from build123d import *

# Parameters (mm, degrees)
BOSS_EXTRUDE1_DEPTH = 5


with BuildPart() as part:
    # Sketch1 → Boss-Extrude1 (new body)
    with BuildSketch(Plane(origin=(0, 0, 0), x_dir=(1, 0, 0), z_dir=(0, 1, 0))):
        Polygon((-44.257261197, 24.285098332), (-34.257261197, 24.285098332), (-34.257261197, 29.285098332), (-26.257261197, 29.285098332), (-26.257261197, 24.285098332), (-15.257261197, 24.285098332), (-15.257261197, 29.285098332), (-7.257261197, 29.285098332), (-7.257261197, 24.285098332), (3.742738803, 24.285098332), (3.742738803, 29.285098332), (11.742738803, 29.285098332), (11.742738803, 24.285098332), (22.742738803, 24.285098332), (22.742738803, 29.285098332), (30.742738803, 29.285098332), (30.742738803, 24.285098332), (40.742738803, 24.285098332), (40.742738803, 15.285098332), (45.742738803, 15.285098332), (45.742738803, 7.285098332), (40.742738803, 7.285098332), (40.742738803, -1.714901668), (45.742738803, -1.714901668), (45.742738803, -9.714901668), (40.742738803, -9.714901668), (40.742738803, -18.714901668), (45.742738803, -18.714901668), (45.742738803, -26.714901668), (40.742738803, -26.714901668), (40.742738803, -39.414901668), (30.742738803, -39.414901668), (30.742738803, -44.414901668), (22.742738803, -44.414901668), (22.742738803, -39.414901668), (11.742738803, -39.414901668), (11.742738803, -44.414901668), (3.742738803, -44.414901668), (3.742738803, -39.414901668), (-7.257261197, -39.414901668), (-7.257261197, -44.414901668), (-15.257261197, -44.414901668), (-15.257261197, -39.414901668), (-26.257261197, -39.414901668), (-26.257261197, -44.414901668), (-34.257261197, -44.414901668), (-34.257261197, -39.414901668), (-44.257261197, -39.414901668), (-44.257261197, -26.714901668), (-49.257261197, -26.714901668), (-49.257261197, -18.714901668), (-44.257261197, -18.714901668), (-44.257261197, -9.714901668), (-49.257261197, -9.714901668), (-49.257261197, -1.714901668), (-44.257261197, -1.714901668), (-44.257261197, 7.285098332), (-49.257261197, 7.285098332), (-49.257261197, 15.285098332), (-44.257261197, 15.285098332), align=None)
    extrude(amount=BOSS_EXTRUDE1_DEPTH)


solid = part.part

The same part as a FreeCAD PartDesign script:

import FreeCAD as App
import Part
import Sketcher
from FreeCAD import Vector
Q = App.Units.Quantity

doc = App.newDocument("Part")
params = doc.addObject("Spreadsheet::Sheet", "Params")
for row, (alias, value) in enumerate([
    ("sketch1_width", "10 mm"),
    ("sketch1_width2", "5 mm"),
    ("sketch1_width3", "8 mm"),
    ("sketch1_width4", "11 mm"),
    ("sketch1_height", "9 mm"),
    ("pad1_length", "5 mm"),
], start=1):
    params.set(f"A{row}", alias)
    params.set(f"B{row}", "=" + value)
    params.setAlias(f"B{row}", alias)

body = doc.addObject("PartDesign::Body", "Body")

# Sketch on XZ plane
sketch1 = body.newObject("Sketcher::SketchObject", "Sketch")
sketch1.AttachmentSupport = (doc.getObject("XZ_Plane"), [""])
sketch1.MapMode = "FlatFace"
sketch1.addGeometry(Part.LineSegment(Vector(-34, -24, 0), Vector(-44, -24, 0)), False)
sketch1.addGeometry(Part.LineSegment(Vector(-44, -24, 0), Vector(-44, -15, 0)), False)
sketch1.addGeometry(Part.LineSegment(Vector(-44, -15, 0), Vector(-49, -15, 0)), False)
sketch1.addGeometry(Part.LineSegment(Vector(-49, -15, 0), Vector(-49, -7, 0)), False)
sketch1.addGeometry(Part.LineSegment(Vector(-49, -7, 0), Vector(-44, -7, 0)), False)
sketch1.addGeometry(Part.LineSegment(Vector(-44, -7, 0), Vector(-44, 2, 0)), False)
sketch1.addGeometry(Part.LineSegment(Vector(-44, 2, 0), Vector(-49, 2, 0)), False)
sketch1.addGeometry(Part.LineSegment(Vector(-49, 2, 0), Vector(-49, 10, 0)), False)
sketch1.addGeometry(Part.LineSegment(Vector(-49, 10, 0), Vector(-44, 10, 0)), False)
sketch1.addGeometry(Part.LineSegment(Vector(-44, 10, 0), Vector(-44, 19, 0)), False)
sketch1.addGeometry(Part.LineSegment(Vector(-44, 19, 0), Vector(-49, 19, 0)), False)
sketch1.addGeometry(Part.LineSegment(Vector(-49, 19, 0), Vector(-49, 27, 0)), False)
sketch1.addGeometry(Part.LineSegment(Vector(-49, 27, 0), Vector(-44, 27, 0)), False)
sketch1.addGeometry(Part.LineSegment(Vector(-44, 27, 0), Vector(-44, 39, 0)), False)
sketch1.addGeometry(Part.LineSegment(Vector(-44, 39, 0), Vector(-34, 39, 0)), False)
sketch1.addGeometry(Part.LineSegment(Vector(-34, 39, 0), Vector(-34, 44, 0)), False)
sketch1.addGeometry(Part.LineSegment(Vector(-34, 44, 0), Vector(-26, 44, 0)), False)
sketch1.addGeometry(Part.LineSegment(Vector(-26, 44, 0), Vector(-26, 39, 0)), False)
sketch1.addGeometry(Part.LineSegment(Vector(-26, 39, 0), Vector(-15, 39, 0)), False)
sketch1.addGeometry(Part.LineSegment(Vector(-15, 39, 0), Vector(-15, 44, 0)), False)
sketch1.addGeometry(Part.LineSegment(Vector(-15, 44, 0), Vector(-7, 44, 0)), False)
sketch1.addGeometry(Part.LineSegment(Vector(-7, 44, 0), Vector(-7, 39, 0)), False)
sketch1.addGeometry(Part.LineSegment(Vector(-7, 39, 0), Vector(4, 39, 0)), False)
sketch1.addGeometry(Part.LineSegment(Vector(4, 39, 0), Vector(4, 44, 0)), False)
sketch1.addGeometry(Part.LineSegment(Vector(4, 44, 0), Vector(12, 44, 0)), False)
sketch1.addGeometry(Part.LineSegment(Vector(12, 44, 0), Vector(12, 39, 0)), False)
sketch1.addGeometry(Part.LineSegment(Vector(12, 39, 0), Vector(23, 39, 0)), False)
sketch1.addGeometry(Part.LineSegment(Vector(23, 39, 0), Vector(23, 44, 0)), False)
sketch1.addGeometry(Part.LineSegment(Vector(23, 44, 0), Vector(31, 44, 0)), False)
sketch1.addGeometry(Part.LineSegment(Vector(31, 44, 0), Vector(31, 39, 0)), False)
sketch1.addGeometry(Part.LineSegment(Vector(31, 39, 0), Vector(41, 39, 0)), False)
sketch1.addGeometry(Part.LineSegment(Vector(41, 39, 0), Vector(41, 27, 0)), False)
sketch1.addGeometry(Part.LineSegment(Vector(41, 27, 0), Vector(46, 27, 0)), False)
sketch1.addGeometry(Part.LineSegment(Vector(46, 27, 0), Vector(46, 19, 0)), False)
sketch1.addGeometry(Part.LineSegment(Vector(46, 19, 0), Vector(41, 19, 0)), False)
sketch1.addGeometry(Part.LineSegment(Vector(41, 19, 0), Vector(41, 10, 0)), False)
sketch1.addGeometry(Part.LineSegment(Vector(41, 10, 0), Vector(46, 10, 0)), False)
sketch1.addGeometry(Part.LineSegment(Vector(46, 10, 0), Vector(46, 2, 0)), False)
sketch1.addGeometry(Part.LineSegment(Vector(46, 2, 0), Vector(41, 2, 0)), False)
sketch1.addGeometry(Part.LineSegment(Vector(41, 2, 0), Vector(41, -7, 0)), False)
sketch1.addGeometry(Part.LineSegment(Vector(41, -7, 0), Vector(46, -7, 0)), False)
sketch1.addGeometry(Part.LineSegment(Vector(46, -7, 0), Vector(46, -15, 0)), False)
sketch1.addGeometry(Part.LineSegment(Vector(46, -15, 0), Vector(41, -15, 0)), False)
sketch1.addGeometry(Part.LineSegment(Vector(41, -15, 0), Vector(41, -24, 0)), False)
sketch1.addGeometry(Part.LineSegment(Vector(41, -24, 0), Vector(31, -24, 0)), False)
sketch1.addGeometry(Part.LineSegment(Vector(31, -24, 0), Vector(31, -29, 0)), False)
sketch1.addGeometry(Part.LineSegment(Vector(31, -29, 0), Vector(23, -29, 0)), False)
sketch1.addGeometry(Part.LineSegment(Vector(23, -29, 0), Vector(23, -24, 0)), False)
sketch1.addGeometry(Part.LineSegment(Vector(23, -24, 0), Vector(12, -24, 0)), False)
sketch1.addGeometry(Part.LineSegment(Vector(12, -24, 0), Vector(12, -29, 0)), False)
sketch1.addGeometry(Part.LineSegment(Vector(12, -29, 0), Vector(4, -29, 0)), False)
sketch1.addGeometry(Part.LineSegment(Vector(4, -29, 0), Vector(4, -24, 0)), False)
sketch1.addGeometry(Part.LineSegment(Vector(4, -24, 0), Vector(-7, -24, 0)), False)
sketch1.addGeometry(Part.LineSegment(Vector(-7, -24, 0), Vector(-7, -29, 0)), False)
sketch1.addGeometry(Part.LineSegment(Vector(-7, -29, 0), Vector(-15, -29, 0)), False)
sketch1.addGeometry(Part.LineSegment(Vector(-15, -29, 0), Vector(-15, -24, 0)), False)
sketch1.addGeometry(Part.LineSegment(Vector(-15, -24, 0), Vector(-26, -24, 0)), False)
sketch1.addGeometry(Part.LineSegment(Vector(-26, -24, 0), Vector(-26, -29, 0)), False)
sketch1.addGeometry(Part.LineSegment(Vector(-26, -29, 0), Vector(-34, -29, 0)), False)
sketch1.addGeometry(Part.LineSegment(Vector(-34, -29, 0), Vector(-34, -24, 0)), False)
sketch1.addConstraint(Sketcher.Constraint("Coincident", 0, 2, 1, 1))
sketch1.addConstraint(Sketcher.Constraint("Coincident", 1, 2, 2, 1))
sketch1.addConstraint(Sketcher.Constraint("Coincident", 2, 2, 3, 1))
sketch1.addConstraint(Sketcher.Constraint("Coincident", 3, 2, 4, 1))
sketch1.addConstraint(Sketcher.Constraint("Coincident", 4, 2, 5, 1))
sketch1.addConstraint(Sketcher.Constraint("Coincident", 5, 2, 6, 1))
sketch1.addConstraint(Sketcher.Constraint("Coincident", 6, 2, 7, 1))
sketch1.addConstraint(Sketcher.Constraint("Coincident", 7, 2, 8, 1))
sketch1.addConstraint(Sketcher.Constraint("Coincident", 8, 2, 9, 1))
sketch1.addConstraint(Sketcher.Constraint("Coincident", 9, 2, 10, 1))
sketch1.addConstraint(Sketcher.Constraint("Coincident", 10, 2, 11, 1))
sketch1.addConstraint(Sketcher.Constraint("Coincident", 11, 2, 12, 1))
sketch1.addConstraint(Sketcher.Constraint("Coincident", 12, 2, 13, 1))
sketch1.addConstraint(Sketcher.Constraint("Coincident", 13, 2, 14, 1))
sketch1.addConstraint(Sketcher.Constraint("Coincident", 14, 2, 15, 1))
sketch1.addConstraint(Sketcher.Constraint("Coincident", 15, 2, 16, 1))
sketch1.addConstraint(Sketcher.Constraint("Coincident", 16, 2, 17, 1))
sketch1.addConstraint(Sketcher.Constraint("Coincident", 17, 2, 18, 1))
sketch1.addConstraint(Sketcher.Constraint("Coincident", 18, 2, 19, 1))
sketch1.addConstraint(Sketcher.Constraint("Coincident", 19, 2, 20, 1))
sketch1.addConstraint(Sketcher.Constraint("Coincident", 20, 2, 21, 1))
sketch1.addConstraint(Sketcher.Constraint("Coincident", 21, 2, 22, 1))
sketch1.addConstraint(Sketcher.Constraint("Coincident", 22, 2, 23, 1))
sketch1.addConstraint(Sketcher.Constraint("Coincident", 23, 2, 24, 1))
sketch1.addConstraint(Sketcher.Constraint("Coincident", 24, 2, 25, 1))
sketch1.addConstraint(Sketcher.Constraint("Coincident", 25, 2, 26, 1))
sketch1.addConstraint(Sketcher.Constraint("Coincident", 26, 2, 27, 1))
sketch1.addConstraint(Sketcher.Constraint("Coincident", 27, 2, 28, 1))
sketch1.addConstraint(Sketcher.Constraint("Coincident", 28, 2, 29, 1))
sketch1.addConstraint(Sketcher.Constraint("Coincident", 29, 2, 30, 1))
sketch1.addConstraint(Sketcher.Constraint("Coincident", 30, 2, 31, 1))
sketch1.addConstraint(Sketcher.Constraint("Coincident", 31, 2, 32, 1))
sketch1.addConstraint(Sketcher.Constraint("Coincident", 32, 2, 33, 1))
sketch1.addConstraint(Sketcher.Constraint("Coincident", 33, 2, 34, 1))
sketch1.addConstraint(Sketcher.Constraint("Coincident", 34, 2, 35, 1))
sketch1.addConstraint(Sketcher.Constraint("Coincident", 35, 2, 36, 1))
sketch1.addConstraint(Sketcher.Constraint("Coincident", 36, 2, 37, 1))
sketch1.addConstraint(Sketcher.Constraint("Coincident", 37, 2, 38, 1))
sketch1.addConstraint(Sketcher.Constraint("Coincident", 38, 2, 39, 1))
sketch1.addConstraint(Sketcher.Constraint("Coincident", 39, 2, 40, 1))
sketch1.addConstraint(Sketcher.Constraint("Coincident", 40, 2, 41, 1))
sketch1.addConstraint(Sketcher.Constraint("Coincident", 41, 2, 42, 1))
sketch1.addConstraint(Sketcher.Constraint("Coincident", 42, 2, 43, 1))
sketch1.addConstraint(Sketcher.Constraint("Coincident", 43, 2, 44, 1))
sketch1.addConstraint(Sketcher.Constraint("Coincident", 44, 2, 45, 1))
sketch1.addConstraint(Sketcher.Constraint("Coincident", 45, 2, 46, 1))
sketch1.addConstraint(Sketcher.Constraint("Coincident", 46, 2, 47, 1))
sketch1.addConstraint(Sketcher.Constraint("Coincident", 47, 2, 48, 1))
sketch1.addConstraint(Sketcher.Constraint("Coincident", 48, 2, 49, 1))
sketch1.addConstraint(Sketcher.Constraint("Coincident", 49, 2, 50, 1))
sketch1.addConstraint(Sketcher.Constraint("Coincident", 50, 2, 51, 1))
sketch1.addConstraint(Sketcher.Constraint("Coincident", 51, 2, 52, 1))
sketch1.addConstraint(Sketcher.Constraint("Coincident", 52, 2, 53, 1))
sketch1.addConstraint(Sketcher.Constraint("Coincident", 53, 2, 54, 1))
sketch1.addConstraint(Sketcher.Constraint("Coincident", 54, 2, 55, 1))
sketch1.addConstraint(Sketcher.Constraint("Coincident", 55, 2, 56, 1))
sketch1.addConstraint(Sketcher.Constraint("Coincident", 56, 2, 57, 1))
sketch1.addConstraint(Sketcher.Constraint("Coincident", 57, 2, 58, 1))
sketch1.addConstraint(Sketcher.Constraint("Coincident", 58, 2, 59, 1))
sketch1.addConstraint(Sketcher.Constraint("Coincident", 59, 2, 0, 1))
sketch1.addConstraint(Sketcher.Constraint("Horizontal", 0))
sketch1.addConstraint(Sketcher.Constraint("Vertical", 1))
sketch1.addConstraint(Sketcher.Constraint("Horizontal", 2))
sketch1.addConstraint(Sketcher.Constraint("Vertical", 3))
sketch1.addConstraint(Sketcher.Constraint("Horizontal", 4))
sketch1.addConstraint(Sketcher.Constraint("Vertical", 5))
sketch1.addConstraint(Sketcher.Constraint("Horizontal", 6))
sketch1.addConstraint(Sketcher.Constraint("Vertical", 7))
sketch1.addConstraint(Sketcher.Constraint("Horizontal", 8))
sketch1.addConstraint(Sketcher.Constraint("Vertical", 9))
sketch1.addConstraint(Sketcher.Constraint("Horizontal", 10))
sketch1.addConstraint(Sketcher.Constraint("Vertical", 11))
sketch1.addConstraint(Sketcher.Constraint("Horizontal", 12))
sketch1.addConstraint(Sketcher.Constraint("Vertical", 13))
sketch1.addConstraint(Sketcher.Constraint("Horizontal", 14))
sketch1.addConstraint(Sketcher.Constraint("Vertical", 15))
sketch1.addConstraint(Sketcher.Constraint("Horizontal", 16))
sketch1.addConstraint(Sketcher.Constraint("Vertical", 17))
sketch1.addConstraint(Sketcher.Constraint("Horizontal", 18))
sketch1.addConstraint(Sketcher.Constraint("Vertical", 19))
sketch1.addConstraint(Sketcher.Constraint("Horizontal", 20))
sketch1.addConstraint(Sketcher.Constraint("Vertical", 21))
sketch1.addConstraint(Sketcher.Constraint("Horizontal", 22))
sketch1.addConstraint(Sketcher.Constraint("Vertical", 23))
sketch1.addConstraint(Sketcher.Constraint("Horizontal", 24))
sketch1.addConstraint(Sketcher.Constraint("Vertical", 25))
sketch1.addConstraint(Sketcher.Constraint("Horizontal", 26))
sketch1.addConstraint(Sketcher.Constraint("Vertical", 27))
sketch1.addConstraint(Sketcher.Constraint("Horizontal", 28))
sketch1.addConstraint(Sketcher.Constraint("Vertical", 29))
sketch1.addConstraint(Sketcher.Constraint("Horizontal", 30))
sketch1.addConstraint(Sketcher.Constraint("Vertical", 31))
sketch1.addConstraint(Sketcher.Constraint("Horizontal", 32))
sketch1.addConstraint(Sketcher.Constraint("Vertical", 33))
sketch1.addConstraint(Sketcher.Constraint("Horizontal", 34))
sketch1.addConstraint(Sketcher.Constraint("Vertical", 35))
sketch1.addConstraint(Sketcher.Constraint("Horizontal", 36))
sketch1.addConstraint(Sketcher.Constraint("Vertical", 37))
sketch1.addConstraint(Sketcher.Constraint("Horizontal", 38))
sketch1.addConstraint(Sketcher.Constraint("Vertical", 39))
sketch1.addConstraint(Sketcher.Constraint("Horizontal", 40))
sketch1.addConstraint(Sketcher.Constraint("Vertical", 41))
sketch1.addConstraint(Sketcher.Constraint("Horizontal", 42))
sketch1.addConstraint(Sketcher.Constraint("Vertical", 43))
sketch1.addConstraint(Sketcher.Constraint("Horizontal", 44))
sketch1.addConstraint(Sketcher.Constraint("Vertical", 45))
sketch1.addConstraint(Sketcher.Constraint("Horizontal", 46))
sketch1.addConstraint(Sketcher.Constraint("Vertical", 47))
sketch1.addConstraint(Sketcher.Constraint("Horizontal", 48))
sketch1.addConstraint(Sketcher.Constraint("Vertical", 49))
sketch1.addConstraint(Sketcher.Constraint("Horizontal", 50))
sketch1.addConstraint(Sketcher.Constraint("Vertical", 51))
sketch1.addConstraint(Sketcher.Constraint("Horizontal", 52))
sketch1.addConstraint(Sketcher.Constraint("Vertical", 53))
sketch1.addConstraint(Sketcher.Constraint("Horizontal", 54))
sketch1.addConstraint(Sketcher.Constraint("Vertical", 55))
sketch1.addConstraint(Sketcher.Constraint("Horizontal", 56))
sketch1.addConstraint(Sketcher.Constraint("Vertical", 57))
sketch1.addConstraint(Sketcher.Constraint("Horizontal", 58))
sketch1.addConstraint(Sketcher.Constraint("Vertical", 59))
sketch1.addConstraint(Sketcher.Constraint("Horizontal", 14, 2, 17, 2))
sketch1.addConstraint(Sketcher.Constraint("Horizontal", 16, 2, 19, 2))
sketch1.addConstraint(Sketcher.Constraint("Horizontal", 18, 2, 21, 2))
sketch1.addConstraint(Sketcher.Constraint("Horizontal", 20, 2, 23, 2))
sketch1.addConstraint(Sketcher.Constraint("Horizontal", 22, 2, 25, 2))
sketch1.addConstraint(Sketcher.Constraint("Horizontal", 24, 2, 27, 2))
sketch1.addConstraint(Sketcher.Constraint("Horizontal", 26, 2, 29, 2))
sketch1.addConstraint(Sketcher.Constraint("Horizontal", 12, 2, 31, 2))
sketch1.addConstraint(Sketcher.Constraint("Horizontal", 10, 2, 33, 2))
sketch1.addConstraint(Sketcher.Constraint("Horizontal", 8, 2, 35, 2))
sketch1.addConstraint(Sketcher.Constraint("Horizontal", 6, 2, 37, 2))
sketch1.addConstraint(Sketcher.Constraint("Horizontal", 4, 2, 39, 2))
sketch1.addConstraint(Sketcher.Constraint("Horizontal", 2, 2, 41, 2))
sketch1.addConstraint(Sketcher.Constraint("Horizontal", 0, 2, 43, 2))
sketch1.addConstraint(Sketcher.Constraint("Horizontal", 44, 2, 47, 2))
sketch1.addConstraint(Sketcher.Constraint("Horizontal", 46, 2, 49, 2))
sketch1.addConstraint(Sketcher.Constraint("Horizontal", 48, 2, 51, 2))
sketch1.addConstraint(Sketcher.Constraint("Horizontal", 50, 2, 53, 2))
sketch1.addConstraint(Sketcher.Constraint("Horizontal", 52, 2, 55, 2))
sketch1.addConstraint(Sketcher.Constraint("Horizontal", 54, 2, 57, 2))
sketch1.addConstraint(Sketcher.Constraint("Vertical", 1, 2, 4, 2))
sketch1.addConstraint(Sketcher.Constraint("Vertical", 3, 2, 6, 2))
sketch1.addConstraint(Sketcher.Constraint("Vertical", 5, 2, 8, 2))
sketch1.addConstraint(Sketcher.Constraint("Vertical", 7, 2, 10, 2))
sketch1.addConstraint(Sketcher.Constraint("Vertical", 9, 2, 12, 2))
sketch1.addConstraint(Sketcher.Constraint("Vertical", 31, 2, 34, 2))
sketch1.addConstraint(Sketcher.Constraint("Vertical", 33, 2, 36, 2))
sketch1.addConstraint(Sketcher.Constraint("Vertical", 35, 2, 38, 2))
sketch1.addConstraint(Sketcher.Constraint("Vertical", 37, 2, 40, 2))
sketch1.addConstraint(Sketcher.Constraint("Vertical", 39, 2, 42, 2))
sketch1.addConstraint(Sketcher.Constraint("Vertical", 29, 2, 44, 2))
sketch1.addConstraint(Sketcher.Constraint("Vertical", 27, 2, 46, 2))
sketch1.addConstraint(Sketcher.Constraint("Vertical", 25, 2, 48, 2))
sketch1.addConstraint(Sketcher.Constraint("Vertical", 23, 2, 50, 2))
sketch1.addConstraint(Sketcher.Constraint("Vertical", 21, 2, 52, 2))
sketch1.addConstraint(Sketcher.Constraint("Vertical", 19, 2, 54, 2))
sketch1.addConstraint(Sketcher.Constraint("Vertical", 17, 2, 56, 2))
sketch1.addConstraint(Sketcher.Constraint("Vertical", 15, 2, 58, 2))
sketch1.addConstraint(Sketcher.Constraint("Equal", 16, 20))
sketch1.addConstraint(Sketcher.Constraint("Equal", 18, 22))
sketch1.addConstraint(Sketcher.Constraint("Equal", 20, 24))
sketch1.addConstraint(Sketcher.Constraint("Equal", 22, 26))
sketch1.addConstraint(Sketcher.Constraint("Equal", 24, 28))
sketch1.addConstraint(Sketcher.Constraint("Equal", 14, 30))
sketch1.addConstraint(Sketcher.Constraint("Equal", 12, 32))
sketch1.addConstraint(Sketcher.Constraint("Equal", 58, 3))
sketch1.addConstraint(Sketcher.Constraint("Equal", 1, 5))
sketch1.addConstraint(Sketcher.Constraint("Equal", 3, 7))
sketch1.addConstraint(Sketcher.Constraint("Equal", 5, 9))
sketch1.addConstraint(Sketcher.Constraint("Equal", 7, 11))
sketch1.addConstraint(Sketcher.Constraint("Equal", 42, 15))
sketch1.addConstraint(Sketcher.Constraint("Equal", 29, 45))
sketch1.addConstraint(Sketcher.Constraint("DistanceX", 0, 2, 0, 1, Q("10 mm")))
sketch1.addConstraint(Sketcher.Constraint("DistanceX", 2, 2, 2, 1, Q("5 mm")))
sketch1.addConstraint(Sketcher.Constraint("DistanceX", 16, 1, 16, 2, Q("8 mm")))
sketch1.addConstraint(Sketcher.Constraint("DistanceX", 18, 1, 18, 2, Q("11 mm")))
sketch1.addConstraint(Sketcher.Constraint("DistanceY", 1, 1, 1, 2, Q("9 mm")))
sketch1.addConstraint(Sketcher.Constraint("DistanceY", 13, 1, 13, 2, Q("12.7 mm")))
sketch1.addConstraint(Sketcher.Constraint("DistanceY", 0, 2, -1, 1, Q("24.285098 mm")))
sketch1.addConstraint(Sketcher.Constraint("DistanceX", 0, 2, -1, 1, Q("44.257261 mm")))
sketch1.setExpression("Constraints[172]", "Params.sketch1_width")
sketch1.setExpression("Constraints[173]", "Params.sketch1_width2")
sketch1.setExpression("Constraints[174]", "Params.sketch1_width3")
sketch1.setExpression("Constraints[175]", "Params.sketch1_width4")
sketch1.setExpression("Constraints[176]", "Params.sketch1_height")
pad1 = body.newObject("PartDesign::Pad", "Pad")
pad1.Profile = sketch1
pad1.setExpression("Length", "Params.pad1_length")
pad1.Reversed = True

doc.recompute()
